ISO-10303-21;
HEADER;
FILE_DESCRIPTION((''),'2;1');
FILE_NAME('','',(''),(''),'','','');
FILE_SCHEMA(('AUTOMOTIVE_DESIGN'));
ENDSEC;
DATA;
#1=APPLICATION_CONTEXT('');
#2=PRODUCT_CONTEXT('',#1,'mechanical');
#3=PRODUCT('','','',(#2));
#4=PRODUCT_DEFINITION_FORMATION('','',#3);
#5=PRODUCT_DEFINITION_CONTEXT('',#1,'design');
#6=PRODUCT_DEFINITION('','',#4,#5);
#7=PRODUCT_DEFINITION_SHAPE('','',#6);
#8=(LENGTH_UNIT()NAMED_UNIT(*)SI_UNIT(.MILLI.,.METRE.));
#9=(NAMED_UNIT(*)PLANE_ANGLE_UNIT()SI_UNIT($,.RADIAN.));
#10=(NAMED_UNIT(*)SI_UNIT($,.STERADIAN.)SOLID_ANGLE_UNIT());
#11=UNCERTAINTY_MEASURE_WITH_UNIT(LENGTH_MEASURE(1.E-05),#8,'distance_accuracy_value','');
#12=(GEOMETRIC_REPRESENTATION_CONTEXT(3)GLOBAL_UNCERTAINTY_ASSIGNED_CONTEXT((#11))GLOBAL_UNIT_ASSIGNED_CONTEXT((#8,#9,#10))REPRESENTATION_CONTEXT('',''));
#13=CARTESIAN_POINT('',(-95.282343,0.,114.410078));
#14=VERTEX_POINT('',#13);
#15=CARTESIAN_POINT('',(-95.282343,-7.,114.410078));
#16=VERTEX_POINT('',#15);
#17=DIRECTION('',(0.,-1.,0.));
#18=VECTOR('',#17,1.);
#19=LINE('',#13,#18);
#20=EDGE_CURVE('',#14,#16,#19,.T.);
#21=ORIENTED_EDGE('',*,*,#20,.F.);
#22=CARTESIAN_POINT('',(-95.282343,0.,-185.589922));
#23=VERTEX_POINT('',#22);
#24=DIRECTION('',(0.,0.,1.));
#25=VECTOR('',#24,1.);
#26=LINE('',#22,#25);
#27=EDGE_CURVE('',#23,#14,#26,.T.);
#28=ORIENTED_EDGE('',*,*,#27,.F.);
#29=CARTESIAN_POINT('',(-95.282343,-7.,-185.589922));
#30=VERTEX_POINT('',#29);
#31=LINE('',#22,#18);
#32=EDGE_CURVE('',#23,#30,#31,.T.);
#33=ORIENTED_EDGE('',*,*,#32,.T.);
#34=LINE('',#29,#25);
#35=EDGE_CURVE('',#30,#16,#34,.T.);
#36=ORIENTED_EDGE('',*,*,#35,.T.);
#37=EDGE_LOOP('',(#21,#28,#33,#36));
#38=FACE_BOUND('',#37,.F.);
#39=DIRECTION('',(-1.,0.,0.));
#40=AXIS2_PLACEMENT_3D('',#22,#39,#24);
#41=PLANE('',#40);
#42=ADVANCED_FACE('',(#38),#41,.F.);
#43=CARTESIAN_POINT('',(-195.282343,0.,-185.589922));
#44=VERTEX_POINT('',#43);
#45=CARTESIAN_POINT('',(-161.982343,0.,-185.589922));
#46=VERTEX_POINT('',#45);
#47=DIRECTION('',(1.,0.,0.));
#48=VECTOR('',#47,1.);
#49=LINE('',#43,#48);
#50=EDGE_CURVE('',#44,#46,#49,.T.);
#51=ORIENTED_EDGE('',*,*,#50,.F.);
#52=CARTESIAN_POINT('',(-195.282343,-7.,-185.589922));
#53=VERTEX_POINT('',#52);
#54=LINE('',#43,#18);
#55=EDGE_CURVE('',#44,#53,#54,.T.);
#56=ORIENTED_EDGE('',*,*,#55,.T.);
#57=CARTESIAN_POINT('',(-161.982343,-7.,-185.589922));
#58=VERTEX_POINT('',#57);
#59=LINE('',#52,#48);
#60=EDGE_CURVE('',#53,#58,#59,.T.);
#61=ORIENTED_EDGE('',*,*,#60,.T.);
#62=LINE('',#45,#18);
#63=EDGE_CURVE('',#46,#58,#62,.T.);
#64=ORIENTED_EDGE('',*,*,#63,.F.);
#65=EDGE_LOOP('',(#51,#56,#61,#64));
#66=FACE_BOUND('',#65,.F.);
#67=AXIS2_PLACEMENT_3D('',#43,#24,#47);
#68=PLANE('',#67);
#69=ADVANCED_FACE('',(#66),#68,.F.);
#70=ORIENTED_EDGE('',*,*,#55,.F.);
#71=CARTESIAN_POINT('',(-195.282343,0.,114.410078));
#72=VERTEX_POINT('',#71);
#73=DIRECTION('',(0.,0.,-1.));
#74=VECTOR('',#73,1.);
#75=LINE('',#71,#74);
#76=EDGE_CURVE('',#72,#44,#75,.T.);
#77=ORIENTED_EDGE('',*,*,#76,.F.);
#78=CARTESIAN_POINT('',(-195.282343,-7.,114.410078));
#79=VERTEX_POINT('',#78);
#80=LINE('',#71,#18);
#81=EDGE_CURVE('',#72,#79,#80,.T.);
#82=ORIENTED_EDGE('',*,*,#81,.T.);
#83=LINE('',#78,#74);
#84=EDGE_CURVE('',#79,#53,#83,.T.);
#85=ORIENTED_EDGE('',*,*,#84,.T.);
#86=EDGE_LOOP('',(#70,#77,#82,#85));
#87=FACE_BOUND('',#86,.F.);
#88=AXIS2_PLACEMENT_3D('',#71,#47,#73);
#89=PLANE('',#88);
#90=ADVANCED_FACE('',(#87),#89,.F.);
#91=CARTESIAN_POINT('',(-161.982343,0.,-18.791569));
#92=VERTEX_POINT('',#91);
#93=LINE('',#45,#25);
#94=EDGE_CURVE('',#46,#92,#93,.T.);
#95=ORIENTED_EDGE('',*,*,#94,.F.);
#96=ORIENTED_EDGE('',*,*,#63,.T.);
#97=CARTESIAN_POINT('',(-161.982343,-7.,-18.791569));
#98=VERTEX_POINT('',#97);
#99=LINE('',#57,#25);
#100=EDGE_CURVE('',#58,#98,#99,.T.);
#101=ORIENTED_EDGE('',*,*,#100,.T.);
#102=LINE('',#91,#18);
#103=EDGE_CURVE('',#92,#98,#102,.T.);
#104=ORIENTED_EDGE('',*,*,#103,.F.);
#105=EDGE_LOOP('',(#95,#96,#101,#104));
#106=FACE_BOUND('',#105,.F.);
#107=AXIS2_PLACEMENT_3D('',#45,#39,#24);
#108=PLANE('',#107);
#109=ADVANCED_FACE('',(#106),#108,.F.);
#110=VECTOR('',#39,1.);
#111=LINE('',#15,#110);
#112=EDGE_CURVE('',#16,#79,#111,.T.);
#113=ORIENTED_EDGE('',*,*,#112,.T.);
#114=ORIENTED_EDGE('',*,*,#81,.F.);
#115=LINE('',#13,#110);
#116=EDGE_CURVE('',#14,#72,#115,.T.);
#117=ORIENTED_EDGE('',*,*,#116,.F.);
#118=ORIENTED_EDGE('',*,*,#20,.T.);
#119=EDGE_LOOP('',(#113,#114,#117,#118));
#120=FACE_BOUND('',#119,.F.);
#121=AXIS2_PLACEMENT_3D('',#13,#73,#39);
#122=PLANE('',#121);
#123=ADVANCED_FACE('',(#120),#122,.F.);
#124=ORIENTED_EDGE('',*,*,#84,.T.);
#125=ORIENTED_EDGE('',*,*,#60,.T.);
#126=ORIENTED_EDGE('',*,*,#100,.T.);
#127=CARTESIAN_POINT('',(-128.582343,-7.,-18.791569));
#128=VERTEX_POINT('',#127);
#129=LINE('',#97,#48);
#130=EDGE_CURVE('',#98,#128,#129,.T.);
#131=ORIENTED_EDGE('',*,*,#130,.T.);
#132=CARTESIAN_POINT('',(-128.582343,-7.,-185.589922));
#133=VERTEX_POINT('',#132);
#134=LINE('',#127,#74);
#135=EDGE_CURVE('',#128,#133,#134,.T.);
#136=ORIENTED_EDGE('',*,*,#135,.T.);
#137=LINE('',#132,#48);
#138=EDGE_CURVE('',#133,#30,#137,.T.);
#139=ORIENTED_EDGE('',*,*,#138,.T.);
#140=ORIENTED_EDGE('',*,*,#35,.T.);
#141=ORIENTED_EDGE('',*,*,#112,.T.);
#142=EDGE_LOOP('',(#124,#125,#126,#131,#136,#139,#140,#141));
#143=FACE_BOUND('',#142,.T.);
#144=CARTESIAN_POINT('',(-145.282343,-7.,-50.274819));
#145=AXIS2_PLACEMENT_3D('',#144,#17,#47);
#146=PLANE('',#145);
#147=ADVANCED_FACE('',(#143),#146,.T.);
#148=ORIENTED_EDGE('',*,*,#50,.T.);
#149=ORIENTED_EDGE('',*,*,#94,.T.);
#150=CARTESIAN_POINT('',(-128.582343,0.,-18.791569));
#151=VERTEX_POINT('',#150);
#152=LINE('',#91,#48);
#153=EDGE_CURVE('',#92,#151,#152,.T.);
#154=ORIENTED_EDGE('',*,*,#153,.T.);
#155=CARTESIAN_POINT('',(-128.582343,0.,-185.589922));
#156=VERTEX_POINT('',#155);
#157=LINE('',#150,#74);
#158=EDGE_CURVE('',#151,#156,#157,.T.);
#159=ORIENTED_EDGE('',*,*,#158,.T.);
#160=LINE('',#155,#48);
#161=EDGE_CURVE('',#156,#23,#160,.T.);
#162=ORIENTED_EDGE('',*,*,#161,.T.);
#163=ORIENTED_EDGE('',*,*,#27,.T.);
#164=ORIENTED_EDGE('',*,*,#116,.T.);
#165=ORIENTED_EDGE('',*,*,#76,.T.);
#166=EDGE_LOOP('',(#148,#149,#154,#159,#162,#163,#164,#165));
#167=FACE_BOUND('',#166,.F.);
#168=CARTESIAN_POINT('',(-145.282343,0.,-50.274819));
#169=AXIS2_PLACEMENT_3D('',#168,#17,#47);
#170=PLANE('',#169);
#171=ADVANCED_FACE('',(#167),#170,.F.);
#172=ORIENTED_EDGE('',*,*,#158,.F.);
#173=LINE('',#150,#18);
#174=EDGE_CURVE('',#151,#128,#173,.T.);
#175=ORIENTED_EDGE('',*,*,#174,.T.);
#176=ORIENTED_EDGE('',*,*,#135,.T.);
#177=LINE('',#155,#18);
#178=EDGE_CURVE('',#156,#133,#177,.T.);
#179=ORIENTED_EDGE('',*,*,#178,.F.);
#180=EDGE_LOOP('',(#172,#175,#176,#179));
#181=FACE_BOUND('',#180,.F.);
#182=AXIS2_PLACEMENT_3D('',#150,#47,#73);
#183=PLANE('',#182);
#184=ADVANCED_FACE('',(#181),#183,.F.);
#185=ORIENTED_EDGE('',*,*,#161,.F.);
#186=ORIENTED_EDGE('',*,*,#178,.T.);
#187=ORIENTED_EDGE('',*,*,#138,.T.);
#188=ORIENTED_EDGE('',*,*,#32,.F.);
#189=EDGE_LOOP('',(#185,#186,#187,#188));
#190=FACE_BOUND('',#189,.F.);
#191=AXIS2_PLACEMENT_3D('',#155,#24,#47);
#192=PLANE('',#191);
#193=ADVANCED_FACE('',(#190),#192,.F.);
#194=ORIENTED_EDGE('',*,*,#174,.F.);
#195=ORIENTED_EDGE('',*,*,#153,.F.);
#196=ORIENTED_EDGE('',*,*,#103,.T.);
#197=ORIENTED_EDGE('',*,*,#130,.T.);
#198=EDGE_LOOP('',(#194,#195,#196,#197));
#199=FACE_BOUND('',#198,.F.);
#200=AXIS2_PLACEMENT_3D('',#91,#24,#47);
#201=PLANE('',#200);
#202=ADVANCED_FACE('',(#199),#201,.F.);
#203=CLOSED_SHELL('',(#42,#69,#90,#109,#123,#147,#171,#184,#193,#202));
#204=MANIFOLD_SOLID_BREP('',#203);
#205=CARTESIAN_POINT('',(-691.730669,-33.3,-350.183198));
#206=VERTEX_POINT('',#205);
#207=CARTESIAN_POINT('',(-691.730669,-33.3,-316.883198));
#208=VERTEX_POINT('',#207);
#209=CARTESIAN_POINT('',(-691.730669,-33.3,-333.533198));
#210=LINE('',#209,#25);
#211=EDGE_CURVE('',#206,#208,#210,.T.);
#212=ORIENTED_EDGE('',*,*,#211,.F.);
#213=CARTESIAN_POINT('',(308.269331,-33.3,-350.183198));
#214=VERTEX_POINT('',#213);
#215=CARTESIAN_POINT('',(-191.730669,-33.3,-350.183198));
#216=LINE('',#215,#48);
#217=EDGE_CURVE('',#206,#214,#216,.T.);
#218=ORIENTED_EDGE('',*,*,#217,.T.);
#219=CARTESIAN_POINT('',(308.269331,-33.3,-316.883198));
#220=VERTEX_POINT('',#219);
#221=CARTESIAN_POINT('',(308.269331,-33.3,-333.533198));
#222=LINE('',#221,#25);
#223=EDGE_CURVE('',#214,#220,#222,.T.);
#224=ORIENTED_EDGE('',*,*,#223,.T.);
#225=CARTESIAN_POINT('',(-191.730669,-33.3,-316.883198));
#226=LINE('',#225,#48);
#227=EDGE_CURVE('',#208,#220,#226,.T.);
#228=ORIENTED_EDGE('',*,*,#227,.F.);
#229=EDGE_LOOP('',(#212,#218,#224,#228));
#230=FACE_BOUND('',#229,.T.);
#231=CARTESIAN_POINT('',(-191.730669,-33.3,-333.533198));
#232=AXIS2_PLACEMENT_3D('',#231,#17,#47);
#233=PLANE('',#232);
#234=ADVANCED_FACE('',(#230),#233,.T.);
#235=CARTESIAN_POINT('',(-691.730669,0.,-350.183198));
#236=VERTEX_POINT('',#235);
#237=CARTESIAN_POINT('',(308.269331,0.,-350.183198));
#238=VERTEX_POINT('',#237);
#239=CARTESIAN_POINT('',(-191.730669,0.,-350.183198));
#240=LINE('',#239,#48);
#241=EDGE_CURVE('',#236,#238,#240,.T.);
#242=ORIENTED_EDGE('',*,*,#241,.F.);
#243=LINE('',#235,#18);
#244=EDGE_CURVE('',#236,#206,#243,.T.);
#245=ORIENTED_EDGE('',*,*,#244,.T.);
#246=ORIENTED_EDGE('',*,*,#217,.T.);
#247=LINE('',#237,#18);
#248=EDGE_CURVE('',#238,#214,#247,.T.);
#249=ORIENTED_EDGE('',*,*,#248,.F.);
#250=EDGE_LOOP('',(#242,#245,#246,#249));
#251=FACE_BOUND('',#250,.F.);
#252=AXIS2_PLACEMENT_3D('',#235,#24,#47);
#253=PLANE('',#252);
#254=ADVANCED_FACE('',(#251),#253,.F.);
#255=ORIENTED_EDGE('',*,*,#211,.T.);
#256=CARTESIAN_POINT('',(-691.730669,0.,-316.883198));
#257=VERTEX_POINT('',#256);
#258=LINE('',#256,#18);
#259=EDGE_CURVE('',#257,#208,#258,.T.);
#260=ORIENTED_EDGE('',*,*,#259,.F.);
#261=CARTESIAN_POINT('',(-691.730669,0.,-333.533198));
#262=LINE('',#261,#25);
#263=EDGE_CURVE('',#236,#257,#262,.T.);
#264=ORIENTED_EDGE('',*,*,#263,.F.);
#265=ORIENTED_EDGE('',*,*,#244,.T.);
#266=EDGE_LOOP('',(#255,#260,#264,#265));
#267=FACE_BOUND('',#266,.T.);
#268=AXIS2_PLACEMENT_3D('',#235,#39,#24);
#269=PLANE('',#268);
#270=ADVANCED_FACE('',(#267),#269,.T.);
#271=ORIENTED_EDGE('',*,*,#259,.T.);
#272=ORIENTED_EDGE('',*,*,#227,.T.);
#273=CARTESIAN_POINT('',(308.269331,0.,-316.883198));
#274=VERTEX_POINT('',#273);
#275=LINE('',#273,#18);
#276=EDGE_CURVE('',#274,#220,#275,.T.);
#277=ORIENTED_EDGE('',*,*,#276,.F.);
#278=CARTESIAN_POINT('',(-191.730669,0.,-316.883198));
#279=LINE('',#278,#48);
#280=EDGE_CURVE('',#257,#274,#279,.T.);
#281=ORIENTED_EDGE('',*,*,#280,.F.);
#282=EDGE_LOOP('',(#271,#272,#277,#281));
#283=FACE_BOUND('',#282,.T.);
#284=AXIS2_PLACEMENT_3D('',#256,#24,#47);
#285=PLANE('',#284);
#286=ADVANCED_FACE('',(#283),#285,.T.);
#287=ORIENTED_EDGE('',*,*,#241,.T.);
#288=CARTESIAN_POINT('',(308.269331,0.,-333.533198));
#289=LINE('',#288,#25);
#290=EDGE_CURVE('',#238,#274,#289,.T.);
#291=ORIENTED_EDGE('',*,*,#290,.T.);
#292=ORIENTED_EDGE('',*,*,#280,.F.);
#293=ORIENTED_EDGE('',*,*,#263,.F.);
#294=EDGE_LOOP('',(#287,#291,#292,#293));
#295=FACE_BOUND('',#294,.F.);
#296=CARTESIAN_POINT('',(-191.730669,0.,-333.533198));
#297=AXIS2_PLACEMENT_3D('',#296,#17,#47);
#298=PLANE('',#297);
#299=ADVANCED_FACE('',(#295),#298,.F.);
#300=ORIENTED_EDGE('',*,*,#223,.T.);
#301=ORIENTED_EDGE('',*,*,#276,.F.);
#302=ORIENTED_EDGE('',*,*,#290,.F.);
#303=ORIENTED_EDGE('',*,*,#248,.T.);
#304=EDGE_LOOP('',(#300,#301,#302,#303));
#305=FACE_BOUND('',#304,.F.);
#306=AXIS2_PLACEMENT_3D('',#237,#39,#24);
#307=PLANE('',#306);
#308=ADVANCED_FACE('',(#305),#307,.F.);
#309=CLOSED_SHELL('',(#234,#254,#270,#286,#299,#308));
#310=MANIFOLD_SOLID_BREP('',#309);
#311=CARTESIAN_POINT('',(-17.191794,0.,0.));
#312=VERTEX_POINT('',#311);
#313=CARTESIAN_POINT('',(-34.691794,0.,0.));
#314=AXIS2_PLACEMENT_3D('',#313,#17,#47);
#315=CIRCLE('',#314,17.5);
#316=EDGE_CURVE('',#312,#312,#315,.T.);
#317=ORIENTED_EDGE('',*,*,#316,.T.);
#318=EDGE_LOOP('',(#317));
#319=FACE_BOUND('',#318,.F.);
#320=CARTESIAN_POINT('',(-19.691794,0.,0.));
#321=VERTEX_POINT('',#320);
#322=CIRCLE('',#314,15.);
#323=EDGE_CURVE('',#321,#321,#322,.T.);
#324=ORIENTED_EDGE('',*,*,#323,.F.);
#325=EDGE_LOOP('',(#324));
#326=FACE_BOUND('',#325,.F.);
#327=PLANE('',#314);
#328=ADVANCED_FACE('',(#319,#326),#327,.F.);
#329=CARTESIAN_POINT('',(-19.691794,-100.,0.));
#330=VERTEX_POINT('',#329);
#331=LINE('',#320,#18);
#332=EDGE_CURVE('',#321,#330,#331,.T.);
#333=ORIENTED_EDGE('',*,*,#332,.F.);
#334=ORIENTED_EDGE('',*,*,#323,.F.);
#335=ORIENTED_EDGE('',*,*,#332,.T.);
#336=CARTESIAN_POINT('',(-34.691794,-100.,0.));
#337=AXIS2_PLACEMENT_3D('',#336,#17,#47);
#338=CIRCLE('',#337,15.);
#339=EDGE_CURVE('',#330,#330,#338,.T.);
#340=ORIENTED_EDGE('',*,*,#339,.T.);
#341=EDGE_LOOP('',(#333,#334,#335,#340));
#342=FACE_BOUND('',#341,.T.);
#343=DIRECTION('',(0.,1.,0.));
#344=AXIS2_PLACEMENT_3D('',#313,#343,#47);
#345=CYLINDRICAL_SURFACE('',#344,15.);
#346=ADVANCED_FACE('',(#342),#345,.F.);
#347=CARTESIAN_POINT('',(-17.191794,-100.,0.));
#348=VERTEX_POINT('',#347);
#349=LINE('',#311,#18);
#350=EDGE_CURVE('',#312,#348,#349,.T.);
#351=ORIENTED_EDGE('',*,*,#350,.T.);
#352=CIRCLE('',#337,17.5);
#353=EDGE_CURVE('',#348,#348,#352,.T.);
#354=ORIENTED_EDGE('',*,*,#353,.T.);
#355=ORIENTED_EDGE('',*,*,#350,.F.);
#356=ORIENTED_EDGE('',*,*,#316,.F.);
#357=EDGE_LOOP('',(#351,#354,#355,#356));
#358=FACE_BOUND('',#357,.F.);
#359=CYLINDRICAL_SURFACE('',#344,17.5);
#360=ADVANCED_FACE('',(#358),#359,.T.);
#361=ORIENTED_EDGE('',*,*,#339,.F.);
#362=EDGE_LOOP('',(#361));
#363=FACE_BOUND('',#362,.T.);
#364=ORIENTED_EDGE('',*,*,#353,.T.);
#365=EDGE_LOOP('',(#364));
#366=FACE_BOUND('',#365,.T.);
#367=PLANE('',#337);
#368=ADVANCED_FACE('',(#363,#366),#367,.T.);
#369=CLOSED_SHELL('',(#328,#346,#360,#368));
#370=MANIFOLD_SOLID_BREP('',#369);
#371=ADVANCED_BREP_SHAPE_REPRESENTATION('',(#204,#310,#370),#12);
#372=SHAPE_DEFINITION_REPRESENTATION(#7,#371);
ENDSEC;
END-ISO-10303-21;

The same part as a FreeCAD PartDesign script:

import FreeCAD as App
import Part
import Sketcher
from FreeCAD import Vector
Q = App.Units.Quantity

doc = App.newDocument("Part")
body = doc.addObject("PartDesign::Body", "Body")

# Sketch on XZ plane
sketch1 = doc.addObject("Sketcher::SketchObject", "Sketch")
body.addObject(sketch1)
sketch1.AttachmentSupport = (doc.XZ_Plane, [""])
sketch1.MapMode = "FlatFace"
sketch1.addGeometry([
    Part.Circle(Vector(-35, 0, 0), Vector(0, 0, 1), 18),
    Part.Circle(Vector(-35, 0, 0), Vector(0, 0, 1), 15),
], False)
sketch1.addConstraint([
    Sketcher.Constraint("Coincident", 1, 3, 0, 3),
    Sketcher.Constraint("PointOnObject", 0, 3, -1),
    Sketcher.Constraint("Diameter", 0, Q("35 mm")),
    Sketcher.Constraint("Diameter", 1, Q("30 mm")),
    Sketcher.Constraint("DistanceX", 0, 3, -1, 1, Q("34.691794 mm")),
])
pad1 = doc.addObject("PartDesign::Pad", "Pad")
body.addObject(pad1)
pad1.Profile = sketch1
pad1.Length = 100
body2 = doc.addObject("PartDesign::Body", "Body001")

# Sketch on XZ plane
sketch2 = doc.addObject("Sketcher::SketchObject", "Sketch001")
body2.addObject(sketch2)
sketch2.AttachmentSupport = (doc.getObject("XZ_Plane001"), [""])
sketch2.MapMode = "FlatFace"
sketch2.addGeometry([
    Part.LineSegment(Vector(-95, -186, 0), Vector(-95, 114, 0)),  # 0
    Part.LineSegment(Vector(-95, 114, 0), Vector(-195, 114, 0)),  # 1
    Part.LineSegment(Vector(-195, 114, 0), Vector(-195, -186, 0)),  # 2
    Part.LineSegment(Vector(-195, -186, 0), Vector(-162, -186, 0)),  # 3
    Part.LineSegment(Vector(-162, -186, 0), Vector(-162, -19, 0)),  # 4
    Part.LineSegment(Vector(-162, -19, 0), Vector(-129, -19, 0)),  # 5
    Part.LineSegment(Vector(-129, -19, 0), Vector(-129, -186, 0)),  # 6
    Part.LineSegment(Vector(-129, -186, 0), Vector(-95, -186, 0)),  # 7
], False)
sketch2.addConstraint([
    Sketcher.Constraint("Coincident", 0, 2, 1, 1),
    Sketcher.Constraint("Coincident", 1, 2, 2, 1),
    Sketcher.Constraint("Coincident", 2, 2, 3, 1),
    Sketcher.Constraint("Coincident", 3, 2, 4, 1),
    Sketcher.Constraint("Coincident", 4, 2, 5, 1),
    Sketcher.Constraint("Coincident", 5, 2, 6, 1),
    Sketcher.Constraint("Coincident", 6, 2, 7, 1),
    Sketcher.Constraint("Coincident", 7, 2, 0, 1),
    Sketcher.Constraint("Vertical", 0),
    Sketcher.Constraint("Horizontal", 1),
    Sketcher.Constraint("Vertical", 2),
    Sketcher.Constraint("Horizontal", 3),
    Sketcher.Constraint("Vertical", 4),
    Sketcher.Constraint("Horizontal", 5),
    Sketcher.Constraint("Vertical", 6),
    Sketcher.Constraint("Horizontal", 7),
    Sketcher.Constraint("Horizontal", 3, 2, 6, 2),
    Sketcher.Constraint("Equal", 3, 7),
    Sketcher.Constraint("DistanceX", 1, 2, 1, 1, Q("100 mm")),
    Sketcher.Constraint("DistanceY", 0, 1, 0, 2, Q("300 mm")),
    Sketcher.Constraint("DistanceX", 3, 1, 3, 2, Q("33.3 mm")),
    Sketcher.Constraint("DistanceY", 4, 1, 4, 2, Q("166.798353 mm")),
    Sketcher.Constraint("DistanceY", -1, 1, 0, 2, Q("114.410078 mm")),
    Sketcher.Constraint("DistanceX", 0, 2, -1, 1, Q("95.282343 mm")),
])
pad2 = doc.addObject("PartDesign::Pad", "Pad001")
body2.addObject(pad2)
pad2.Profile = sketch2
pad2.Length = 7
body3 = doc.addObject("PartDesign::Body", "Body002")

# Sketch on XZ plane
sketch3 = doc.addObject("Sketcher::SketchObject", "Sketch002")
body3.addObject(sketch3)
sketch3.AttachmentSupport = (doc.getObject("XZ_Plane002"), [""])
sketch3.MapMode = "FlatFace"
sketch3.addGeometry([
    Part.LineSegment(Vector(-692, -317, 0), Vector(-692, -350, 0)),
    Part.LineSegment(Vector(-692, -350, 0), Vector(308, -350, 0)),
    Part.LineSegment(Vector(308, -350, 0), Vector(308, -317, 0)),
    Part.LineSegment(Vector(308, -317, 0), Vector(-692, -317, 0)),
], False)
sketch3.addConstraint([
    Sketcher.Constraint("Coincident", 0, 2, 1, 1),
    Sketcher.Constraint("Coincident", 1, 2, 2, 1),
    Sketcher.Constraint("Coincident", 2, 2, 3, 1),
    Sketcher.Constraint("Coincident", 3, 2, 0, 1),
    Sketcher.Constraint("Vertical", 0),
    Sketcher.Constraint("Horizontal", 1),
    Sketcher.Constraint("Vertical", 2),
    Sketcher.Constraint("Horizontal", 3),
    Sketcher.Constraint("DistanceX", 1, 1, 1, 2, Q("1000 mm")),
    Sketcher.Constraint("DistanceY", 0, 2, 0, 1, Q("33.3 mm")),
    Sketcher.Constraint("DistanceY", 0, 2, -1, 1, Q("350.183198 mm")),
    Sketcher.Constraint("DistanceX", 0, 2, -1, 1, Q("691.730669 mm")),
])
pad3 = doc.addObject("PartDesign::Pad", "Pad002")
body3.addObject(pad3)
pad3.Profile = sketch3
pad3.Length = 33.3

doc.recompute()
